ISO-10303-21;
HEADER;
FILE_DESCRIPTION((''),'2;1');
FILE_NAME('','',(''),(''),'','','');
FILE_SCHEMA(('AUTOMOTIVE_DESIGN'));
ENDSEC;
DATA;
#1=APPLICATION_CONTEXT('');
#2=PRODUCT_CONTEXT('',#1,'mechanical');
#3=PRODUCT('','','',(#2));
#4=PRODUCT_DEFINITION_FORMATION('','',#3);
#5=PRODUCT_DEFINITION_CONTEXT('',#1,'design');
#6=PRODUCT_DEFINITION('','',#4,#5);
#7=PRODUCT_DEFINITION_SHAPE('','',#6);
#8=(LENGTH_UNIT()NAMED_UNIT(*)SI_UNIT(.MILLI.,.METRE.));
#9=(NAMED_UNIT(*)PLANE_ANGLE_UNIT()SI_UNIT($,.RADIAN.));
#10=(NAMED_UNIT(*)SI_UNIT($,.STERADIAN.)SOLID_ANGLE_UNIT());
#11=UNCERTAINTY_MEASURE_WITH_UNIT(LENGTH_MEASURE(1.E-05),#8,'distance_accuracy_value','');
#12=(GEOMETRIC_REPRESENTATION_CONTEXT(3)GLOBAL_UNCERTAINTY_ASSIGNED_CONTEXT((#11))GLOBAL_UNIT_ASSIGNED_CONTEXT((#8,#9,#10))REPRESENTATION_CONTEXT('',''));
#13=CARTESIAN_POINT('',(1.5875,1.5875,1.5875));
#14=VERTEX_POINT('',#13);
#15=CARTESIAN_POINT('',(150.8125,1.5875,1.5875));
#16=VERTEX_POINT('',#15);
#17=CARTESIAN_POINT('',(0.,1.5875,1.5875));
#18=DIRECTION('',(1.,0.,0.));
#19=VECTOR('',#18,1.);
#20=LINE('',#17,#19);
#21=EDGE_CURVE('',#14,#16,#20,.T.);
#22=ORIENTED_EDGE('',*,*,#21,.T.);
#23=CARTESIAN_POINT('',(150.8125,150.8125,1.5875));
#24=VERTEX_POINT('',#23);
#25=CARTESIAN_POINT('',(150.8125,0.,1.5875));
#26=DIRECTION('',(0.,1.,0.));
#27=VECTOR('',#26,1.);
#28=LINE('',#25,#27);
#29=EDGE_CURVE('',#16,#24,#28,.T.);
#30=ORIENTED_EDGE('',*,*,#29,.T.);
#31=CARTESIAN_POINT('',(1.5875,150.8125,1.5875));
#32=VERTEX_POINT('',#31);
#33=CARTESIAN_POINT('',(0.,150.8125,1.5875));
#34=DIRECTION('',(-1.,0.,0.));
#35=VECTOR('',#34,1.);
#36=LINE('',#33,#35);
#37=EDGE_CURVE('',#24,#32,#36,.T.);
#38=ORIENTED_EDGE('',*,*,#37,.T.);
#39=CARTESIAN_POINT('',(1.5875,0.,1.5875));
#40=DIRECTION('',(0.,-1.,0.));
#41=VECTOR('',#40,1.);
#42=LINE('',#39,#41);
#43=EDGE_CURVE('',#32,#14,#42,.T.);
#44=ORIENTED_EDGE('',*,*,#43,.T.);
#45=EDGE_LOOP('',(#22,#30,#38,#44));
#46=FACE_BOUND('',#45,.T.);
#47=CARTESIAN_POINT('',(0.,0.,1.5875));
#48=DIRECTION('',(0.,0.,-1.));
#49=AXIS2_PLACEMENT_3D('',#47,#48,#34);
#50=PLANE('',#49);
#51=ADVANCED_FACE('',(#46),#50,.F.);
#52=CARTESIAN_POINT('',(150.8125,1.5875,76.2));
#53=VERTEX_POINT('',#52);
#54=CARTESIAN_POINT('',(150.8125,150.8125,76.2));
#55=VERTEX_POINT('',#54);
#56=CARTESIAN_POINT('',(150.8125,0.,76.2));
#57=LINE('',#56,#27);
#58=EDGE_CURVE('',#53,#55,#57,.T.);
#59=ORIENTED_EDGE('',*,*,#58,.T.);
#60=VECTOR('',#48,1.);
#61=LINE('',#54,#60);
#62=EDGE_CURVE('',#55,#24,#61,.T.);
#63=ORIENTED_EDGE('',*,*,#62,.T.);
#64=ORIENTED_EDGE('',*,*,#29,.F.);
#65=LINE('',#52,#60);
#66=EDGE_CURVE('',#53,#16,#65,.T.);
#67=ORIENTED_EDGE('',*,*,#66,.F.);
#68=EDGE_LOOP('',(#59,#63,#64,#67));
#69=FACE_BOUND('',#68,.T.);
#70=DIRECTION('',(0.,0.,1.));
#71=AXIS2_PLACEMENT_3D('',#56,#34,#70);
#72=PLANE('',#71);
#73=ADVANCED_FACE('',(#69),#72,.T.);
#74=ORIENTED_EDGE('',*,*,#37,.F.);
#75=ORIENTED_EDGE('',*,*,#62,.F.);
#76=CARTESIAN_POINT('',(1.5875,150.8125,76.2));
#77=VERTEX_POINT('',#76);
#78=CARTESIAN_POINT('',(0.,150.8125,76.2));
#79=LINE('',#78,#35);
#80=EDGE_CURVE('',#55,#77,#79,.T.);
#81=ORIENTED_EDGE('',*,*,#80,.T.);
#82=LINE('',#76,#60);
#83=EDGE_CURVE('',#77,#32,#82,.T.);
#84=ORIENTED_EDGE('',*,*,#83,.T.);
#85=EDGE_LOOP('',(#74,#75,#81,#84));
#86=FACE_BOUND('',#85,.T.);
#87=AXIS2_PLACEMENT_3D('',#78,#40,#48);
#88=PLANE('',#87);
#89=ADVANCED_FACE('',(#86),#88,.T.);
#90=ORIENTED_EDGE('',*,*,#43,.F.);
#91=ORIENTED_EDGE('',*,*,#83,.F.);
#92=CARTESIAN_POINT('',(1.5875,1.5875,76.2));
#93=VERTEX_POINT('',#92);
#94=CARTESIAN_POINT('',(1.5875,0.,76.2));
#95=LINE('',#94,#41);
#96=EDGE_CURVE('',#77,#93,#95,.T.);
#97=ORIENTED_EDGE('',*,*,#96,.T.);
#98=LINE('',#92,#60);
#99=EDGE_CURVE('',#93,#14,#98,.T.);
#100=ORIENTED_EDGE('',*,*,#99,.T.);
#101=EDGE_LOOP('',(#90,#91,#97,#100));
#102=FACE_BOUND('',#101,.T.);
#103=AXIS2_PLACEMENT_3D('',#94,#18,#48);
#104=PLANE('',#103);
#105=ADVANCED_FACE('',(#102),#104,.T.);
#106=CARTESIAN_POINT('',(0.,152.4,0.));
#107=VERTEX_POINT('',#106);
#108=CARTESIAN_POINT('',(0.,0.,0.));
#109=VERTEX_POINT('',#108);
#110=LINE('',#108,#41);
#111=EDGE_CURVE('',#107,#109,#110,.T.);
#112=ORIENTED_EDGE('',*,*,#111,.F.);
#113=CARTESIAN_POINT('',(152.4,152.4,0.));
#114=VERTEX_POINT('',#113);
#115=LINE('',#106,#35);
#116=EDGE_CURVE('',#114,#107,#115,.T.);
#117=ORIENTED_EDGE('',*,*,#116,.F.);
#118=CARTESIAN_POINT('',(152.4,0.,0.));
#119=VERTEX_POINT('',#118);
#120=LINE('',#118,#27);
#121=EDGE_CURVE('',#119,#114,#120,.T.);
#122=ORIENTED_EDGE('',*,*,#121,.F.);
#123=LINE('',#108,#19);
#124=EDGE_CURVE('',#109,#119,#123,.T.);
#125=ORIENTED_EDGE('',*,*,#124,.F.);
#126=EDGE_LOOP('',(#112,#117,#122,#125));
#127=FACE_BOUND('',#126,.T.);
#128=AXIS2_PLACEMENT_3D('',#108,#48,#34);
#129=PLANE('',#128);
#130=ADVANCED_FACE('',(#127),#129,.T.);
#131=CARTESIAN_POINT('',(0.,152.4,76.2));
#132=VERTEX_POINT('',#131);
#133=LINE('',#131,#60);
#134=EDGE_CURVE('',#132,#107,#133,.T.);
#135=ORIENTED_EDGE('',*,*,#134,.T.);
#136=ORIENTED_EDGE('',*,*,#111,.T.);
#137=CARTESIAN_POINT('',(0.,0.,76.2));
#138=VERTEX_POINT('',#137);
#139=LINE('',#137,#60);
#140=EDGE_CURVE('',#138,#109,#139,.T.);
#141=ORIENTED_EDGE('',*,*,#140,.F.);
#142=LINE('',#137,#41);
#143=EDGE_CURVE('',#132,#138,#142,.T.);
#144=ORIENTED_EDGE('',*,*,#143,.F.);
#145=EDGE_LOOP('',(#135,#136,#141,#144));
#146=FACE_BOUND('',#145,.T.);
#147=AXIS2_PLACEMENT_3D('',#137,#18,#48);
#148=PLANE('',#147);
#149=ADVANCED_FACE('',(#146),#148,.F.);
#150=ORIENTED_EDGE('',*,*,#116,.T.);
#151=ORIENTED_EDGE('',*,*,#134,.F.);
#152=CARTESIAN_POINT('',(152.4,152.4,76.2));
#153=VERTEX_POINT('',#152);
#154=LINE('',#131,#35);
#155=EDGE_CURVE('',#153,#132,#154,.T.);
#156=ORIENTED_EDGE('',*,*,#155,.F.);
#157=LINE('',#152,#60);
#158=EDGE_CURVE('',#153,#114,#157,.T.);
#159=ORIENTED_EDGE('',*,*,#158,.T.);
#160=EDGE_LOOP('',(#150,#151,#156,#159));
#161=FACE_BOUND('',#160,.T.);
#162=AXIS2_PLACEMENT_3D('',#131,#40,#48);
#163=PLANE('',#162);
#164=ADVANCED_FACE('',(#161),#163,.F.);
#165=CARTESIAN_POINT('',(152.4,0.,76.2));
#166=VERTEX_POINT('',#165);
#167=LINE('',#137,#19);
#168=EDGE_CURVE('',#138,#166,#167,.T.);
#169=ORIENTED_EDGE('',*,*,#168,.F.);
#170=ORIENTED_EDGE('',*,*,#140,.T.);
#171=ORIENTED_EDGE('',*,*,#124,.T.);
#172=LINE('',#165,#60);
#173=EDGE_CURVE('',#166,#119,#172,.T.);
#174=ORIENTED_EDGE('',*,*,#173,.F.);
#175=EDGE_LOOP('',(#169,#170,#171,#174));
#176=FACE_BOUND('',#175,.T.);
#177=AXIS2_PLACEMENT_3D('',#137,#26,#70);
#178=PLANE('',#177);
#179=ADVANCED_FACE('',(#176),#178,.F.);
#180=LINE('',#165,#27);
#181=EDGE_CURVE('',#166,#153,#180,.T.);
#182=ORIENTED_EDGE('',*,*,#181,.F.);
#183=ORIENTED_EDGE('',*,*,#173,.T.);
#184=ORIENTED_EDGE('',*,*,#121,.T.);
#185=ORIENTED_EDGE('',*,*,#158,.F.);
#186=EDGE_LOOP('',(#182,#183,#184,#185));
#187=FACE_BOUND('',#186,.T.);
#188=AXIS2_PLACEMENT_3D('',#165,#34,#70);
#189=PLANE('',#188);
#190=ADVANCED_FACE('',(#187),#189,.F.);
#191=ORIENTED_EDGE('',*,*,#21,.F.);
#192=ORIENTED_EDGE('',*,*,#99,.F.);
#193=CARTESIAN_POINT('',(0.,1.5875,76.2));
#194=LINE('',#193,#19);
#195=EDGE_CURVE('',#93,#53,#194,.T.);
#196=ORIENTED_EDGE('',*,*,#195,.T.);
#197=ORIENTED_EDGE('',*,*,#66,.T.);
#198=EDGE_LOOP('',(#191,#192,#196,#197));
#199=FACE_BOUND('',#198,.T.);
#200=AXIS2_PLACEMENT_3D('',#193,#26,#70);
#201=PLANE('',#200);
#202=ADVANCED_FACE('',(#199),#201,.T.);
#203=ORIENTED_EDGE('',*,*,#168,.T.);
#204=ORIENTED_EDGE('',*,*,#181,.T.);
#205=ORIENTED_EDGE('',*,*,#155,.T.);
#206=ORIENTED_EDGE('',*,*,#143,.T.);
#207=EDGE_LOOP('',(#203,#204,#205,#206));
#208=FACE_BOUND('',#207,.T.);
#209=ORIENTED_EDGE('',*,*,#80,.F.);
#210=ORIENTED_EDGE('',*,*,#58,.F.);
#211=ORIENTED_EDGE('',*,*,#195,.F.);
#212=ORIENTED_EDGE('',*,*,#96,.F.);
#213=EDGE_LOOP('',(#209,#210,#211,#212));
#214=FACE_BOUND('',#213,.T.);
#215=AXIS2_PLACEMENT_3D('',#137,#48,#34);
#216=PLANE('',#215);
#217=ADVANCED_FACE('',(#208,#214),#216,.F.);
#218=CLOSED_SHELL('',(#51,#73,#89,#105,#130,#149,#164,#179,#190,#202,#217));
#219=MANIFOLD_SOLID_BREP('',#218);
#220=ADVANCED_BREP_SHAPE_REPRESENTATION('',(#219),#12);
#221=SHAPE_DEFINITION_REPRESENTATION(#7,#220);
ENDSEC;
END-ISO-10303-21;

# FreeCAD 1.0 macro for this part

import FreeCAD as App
import Part
import Sketcher

V = App.Vector
Q = App.Units.Quantity


def faces_at(feature, points):
    """Names of the faces that lie closest to the given points."""
    faces = feature.Shape.Faces
    near = lambda p: min(range(len(faces)), key=lambda i: faces[i].distToShape(Part.Vertex(*p))[0])
    return sorted({f"Face{near(p) + 1}" for p in points})

doc = App.newDocument("Part")
params = doc.addObject("Spreadsheet::Sheet", "Params")
for row, (alias, value) in enumerate([
    ("sketch1_width", "6 in"),
    ("pad1_length", "3 in"),
    ("thickness_wall", "0.0625 in"),
], start=1):
    params.set(f"A{row}", alias)
    params.set(f"B{row}", "=" + value)
    params.setAlias(f"B{row}", alias)

body = doc.addObject("PartDesign::Body", "Body")

sketch1 = body.newObject("Sketcher::SketchObject", "Sketch")
sketch1.AttachmentSupport = (doc.getObject("XY_Plane"), [""])
sketch1.MapMode = "FlatFace"
sketch1.addGeometry(Part.LineSegment(V(0, 152, 0), V(0, 0, 0)), False)
sketch1.addGeometry(Part.LineSegment(V(0, 0, 0), V(152, 0, 0)), False)
sketch1.addGeometry(Part.LineSegment(V(152, 0, 0), V(152, 152, 0)), False)
sketch1.addGeometry(Part.LineSegment(V(152, 152, 0), V(0, 152, 0)), False)
sketch1.addConstraint(Sketcher.Constraint("Coincident", 0, 2, 1, 1))
sketch1.addConstraint(Sketcher.Constraint("Coincident", 1, 2, 2, 1))
sketch1.addConstraint(Sketcher.Constraint("Coincident", 2, 2, 3, 1))
sketch1.addConstraint(Sketcher.Constraint("Coincident", 3, 2, 0, 1))
sketch1.addConstraint(Sketcher.Constraint("Vertical", 0))
sketch1.addConstraint(Sketcher.Constraint("Horizontal", 1))
sketch1.addConstraint(Sketcher.Constraint("Vertical", 2))
sketch1.addConstraint(Sketcher.Constraint("Horizontal", 3))
sketch1.addConstraint(Sketcher.Constraint("Coincident", 0, 2, -1, 1))
sketch1.addConstraint(Sketcher.Constraint("Equal", 3, 0))
sketch1.addConstraint(Sketcher.Constraint("DistanceX", 1, 1, 1, 2, Q("6 in")))
sketch1.setExpression("Constraints[10]", "Params.sketch1_width")
pad1 = body.newObject("PartDesign::Pad", "Pad")
pad1.Profile = sketch1
pad1.setExpression("Length", "Params.pad1_length")
doc.recompute()

thickness = body.newObject("PartDesign::Thickness", "Thickness")
thickness.Base = (pad1, faces_at(pad1, [(76.2, 76.2, 76.2)]))
thickness.setExpression("Value", "Params.thickness_wall")
thickness.Reversed = True
thickness.Join = "Intersection"

doc.recompute()
